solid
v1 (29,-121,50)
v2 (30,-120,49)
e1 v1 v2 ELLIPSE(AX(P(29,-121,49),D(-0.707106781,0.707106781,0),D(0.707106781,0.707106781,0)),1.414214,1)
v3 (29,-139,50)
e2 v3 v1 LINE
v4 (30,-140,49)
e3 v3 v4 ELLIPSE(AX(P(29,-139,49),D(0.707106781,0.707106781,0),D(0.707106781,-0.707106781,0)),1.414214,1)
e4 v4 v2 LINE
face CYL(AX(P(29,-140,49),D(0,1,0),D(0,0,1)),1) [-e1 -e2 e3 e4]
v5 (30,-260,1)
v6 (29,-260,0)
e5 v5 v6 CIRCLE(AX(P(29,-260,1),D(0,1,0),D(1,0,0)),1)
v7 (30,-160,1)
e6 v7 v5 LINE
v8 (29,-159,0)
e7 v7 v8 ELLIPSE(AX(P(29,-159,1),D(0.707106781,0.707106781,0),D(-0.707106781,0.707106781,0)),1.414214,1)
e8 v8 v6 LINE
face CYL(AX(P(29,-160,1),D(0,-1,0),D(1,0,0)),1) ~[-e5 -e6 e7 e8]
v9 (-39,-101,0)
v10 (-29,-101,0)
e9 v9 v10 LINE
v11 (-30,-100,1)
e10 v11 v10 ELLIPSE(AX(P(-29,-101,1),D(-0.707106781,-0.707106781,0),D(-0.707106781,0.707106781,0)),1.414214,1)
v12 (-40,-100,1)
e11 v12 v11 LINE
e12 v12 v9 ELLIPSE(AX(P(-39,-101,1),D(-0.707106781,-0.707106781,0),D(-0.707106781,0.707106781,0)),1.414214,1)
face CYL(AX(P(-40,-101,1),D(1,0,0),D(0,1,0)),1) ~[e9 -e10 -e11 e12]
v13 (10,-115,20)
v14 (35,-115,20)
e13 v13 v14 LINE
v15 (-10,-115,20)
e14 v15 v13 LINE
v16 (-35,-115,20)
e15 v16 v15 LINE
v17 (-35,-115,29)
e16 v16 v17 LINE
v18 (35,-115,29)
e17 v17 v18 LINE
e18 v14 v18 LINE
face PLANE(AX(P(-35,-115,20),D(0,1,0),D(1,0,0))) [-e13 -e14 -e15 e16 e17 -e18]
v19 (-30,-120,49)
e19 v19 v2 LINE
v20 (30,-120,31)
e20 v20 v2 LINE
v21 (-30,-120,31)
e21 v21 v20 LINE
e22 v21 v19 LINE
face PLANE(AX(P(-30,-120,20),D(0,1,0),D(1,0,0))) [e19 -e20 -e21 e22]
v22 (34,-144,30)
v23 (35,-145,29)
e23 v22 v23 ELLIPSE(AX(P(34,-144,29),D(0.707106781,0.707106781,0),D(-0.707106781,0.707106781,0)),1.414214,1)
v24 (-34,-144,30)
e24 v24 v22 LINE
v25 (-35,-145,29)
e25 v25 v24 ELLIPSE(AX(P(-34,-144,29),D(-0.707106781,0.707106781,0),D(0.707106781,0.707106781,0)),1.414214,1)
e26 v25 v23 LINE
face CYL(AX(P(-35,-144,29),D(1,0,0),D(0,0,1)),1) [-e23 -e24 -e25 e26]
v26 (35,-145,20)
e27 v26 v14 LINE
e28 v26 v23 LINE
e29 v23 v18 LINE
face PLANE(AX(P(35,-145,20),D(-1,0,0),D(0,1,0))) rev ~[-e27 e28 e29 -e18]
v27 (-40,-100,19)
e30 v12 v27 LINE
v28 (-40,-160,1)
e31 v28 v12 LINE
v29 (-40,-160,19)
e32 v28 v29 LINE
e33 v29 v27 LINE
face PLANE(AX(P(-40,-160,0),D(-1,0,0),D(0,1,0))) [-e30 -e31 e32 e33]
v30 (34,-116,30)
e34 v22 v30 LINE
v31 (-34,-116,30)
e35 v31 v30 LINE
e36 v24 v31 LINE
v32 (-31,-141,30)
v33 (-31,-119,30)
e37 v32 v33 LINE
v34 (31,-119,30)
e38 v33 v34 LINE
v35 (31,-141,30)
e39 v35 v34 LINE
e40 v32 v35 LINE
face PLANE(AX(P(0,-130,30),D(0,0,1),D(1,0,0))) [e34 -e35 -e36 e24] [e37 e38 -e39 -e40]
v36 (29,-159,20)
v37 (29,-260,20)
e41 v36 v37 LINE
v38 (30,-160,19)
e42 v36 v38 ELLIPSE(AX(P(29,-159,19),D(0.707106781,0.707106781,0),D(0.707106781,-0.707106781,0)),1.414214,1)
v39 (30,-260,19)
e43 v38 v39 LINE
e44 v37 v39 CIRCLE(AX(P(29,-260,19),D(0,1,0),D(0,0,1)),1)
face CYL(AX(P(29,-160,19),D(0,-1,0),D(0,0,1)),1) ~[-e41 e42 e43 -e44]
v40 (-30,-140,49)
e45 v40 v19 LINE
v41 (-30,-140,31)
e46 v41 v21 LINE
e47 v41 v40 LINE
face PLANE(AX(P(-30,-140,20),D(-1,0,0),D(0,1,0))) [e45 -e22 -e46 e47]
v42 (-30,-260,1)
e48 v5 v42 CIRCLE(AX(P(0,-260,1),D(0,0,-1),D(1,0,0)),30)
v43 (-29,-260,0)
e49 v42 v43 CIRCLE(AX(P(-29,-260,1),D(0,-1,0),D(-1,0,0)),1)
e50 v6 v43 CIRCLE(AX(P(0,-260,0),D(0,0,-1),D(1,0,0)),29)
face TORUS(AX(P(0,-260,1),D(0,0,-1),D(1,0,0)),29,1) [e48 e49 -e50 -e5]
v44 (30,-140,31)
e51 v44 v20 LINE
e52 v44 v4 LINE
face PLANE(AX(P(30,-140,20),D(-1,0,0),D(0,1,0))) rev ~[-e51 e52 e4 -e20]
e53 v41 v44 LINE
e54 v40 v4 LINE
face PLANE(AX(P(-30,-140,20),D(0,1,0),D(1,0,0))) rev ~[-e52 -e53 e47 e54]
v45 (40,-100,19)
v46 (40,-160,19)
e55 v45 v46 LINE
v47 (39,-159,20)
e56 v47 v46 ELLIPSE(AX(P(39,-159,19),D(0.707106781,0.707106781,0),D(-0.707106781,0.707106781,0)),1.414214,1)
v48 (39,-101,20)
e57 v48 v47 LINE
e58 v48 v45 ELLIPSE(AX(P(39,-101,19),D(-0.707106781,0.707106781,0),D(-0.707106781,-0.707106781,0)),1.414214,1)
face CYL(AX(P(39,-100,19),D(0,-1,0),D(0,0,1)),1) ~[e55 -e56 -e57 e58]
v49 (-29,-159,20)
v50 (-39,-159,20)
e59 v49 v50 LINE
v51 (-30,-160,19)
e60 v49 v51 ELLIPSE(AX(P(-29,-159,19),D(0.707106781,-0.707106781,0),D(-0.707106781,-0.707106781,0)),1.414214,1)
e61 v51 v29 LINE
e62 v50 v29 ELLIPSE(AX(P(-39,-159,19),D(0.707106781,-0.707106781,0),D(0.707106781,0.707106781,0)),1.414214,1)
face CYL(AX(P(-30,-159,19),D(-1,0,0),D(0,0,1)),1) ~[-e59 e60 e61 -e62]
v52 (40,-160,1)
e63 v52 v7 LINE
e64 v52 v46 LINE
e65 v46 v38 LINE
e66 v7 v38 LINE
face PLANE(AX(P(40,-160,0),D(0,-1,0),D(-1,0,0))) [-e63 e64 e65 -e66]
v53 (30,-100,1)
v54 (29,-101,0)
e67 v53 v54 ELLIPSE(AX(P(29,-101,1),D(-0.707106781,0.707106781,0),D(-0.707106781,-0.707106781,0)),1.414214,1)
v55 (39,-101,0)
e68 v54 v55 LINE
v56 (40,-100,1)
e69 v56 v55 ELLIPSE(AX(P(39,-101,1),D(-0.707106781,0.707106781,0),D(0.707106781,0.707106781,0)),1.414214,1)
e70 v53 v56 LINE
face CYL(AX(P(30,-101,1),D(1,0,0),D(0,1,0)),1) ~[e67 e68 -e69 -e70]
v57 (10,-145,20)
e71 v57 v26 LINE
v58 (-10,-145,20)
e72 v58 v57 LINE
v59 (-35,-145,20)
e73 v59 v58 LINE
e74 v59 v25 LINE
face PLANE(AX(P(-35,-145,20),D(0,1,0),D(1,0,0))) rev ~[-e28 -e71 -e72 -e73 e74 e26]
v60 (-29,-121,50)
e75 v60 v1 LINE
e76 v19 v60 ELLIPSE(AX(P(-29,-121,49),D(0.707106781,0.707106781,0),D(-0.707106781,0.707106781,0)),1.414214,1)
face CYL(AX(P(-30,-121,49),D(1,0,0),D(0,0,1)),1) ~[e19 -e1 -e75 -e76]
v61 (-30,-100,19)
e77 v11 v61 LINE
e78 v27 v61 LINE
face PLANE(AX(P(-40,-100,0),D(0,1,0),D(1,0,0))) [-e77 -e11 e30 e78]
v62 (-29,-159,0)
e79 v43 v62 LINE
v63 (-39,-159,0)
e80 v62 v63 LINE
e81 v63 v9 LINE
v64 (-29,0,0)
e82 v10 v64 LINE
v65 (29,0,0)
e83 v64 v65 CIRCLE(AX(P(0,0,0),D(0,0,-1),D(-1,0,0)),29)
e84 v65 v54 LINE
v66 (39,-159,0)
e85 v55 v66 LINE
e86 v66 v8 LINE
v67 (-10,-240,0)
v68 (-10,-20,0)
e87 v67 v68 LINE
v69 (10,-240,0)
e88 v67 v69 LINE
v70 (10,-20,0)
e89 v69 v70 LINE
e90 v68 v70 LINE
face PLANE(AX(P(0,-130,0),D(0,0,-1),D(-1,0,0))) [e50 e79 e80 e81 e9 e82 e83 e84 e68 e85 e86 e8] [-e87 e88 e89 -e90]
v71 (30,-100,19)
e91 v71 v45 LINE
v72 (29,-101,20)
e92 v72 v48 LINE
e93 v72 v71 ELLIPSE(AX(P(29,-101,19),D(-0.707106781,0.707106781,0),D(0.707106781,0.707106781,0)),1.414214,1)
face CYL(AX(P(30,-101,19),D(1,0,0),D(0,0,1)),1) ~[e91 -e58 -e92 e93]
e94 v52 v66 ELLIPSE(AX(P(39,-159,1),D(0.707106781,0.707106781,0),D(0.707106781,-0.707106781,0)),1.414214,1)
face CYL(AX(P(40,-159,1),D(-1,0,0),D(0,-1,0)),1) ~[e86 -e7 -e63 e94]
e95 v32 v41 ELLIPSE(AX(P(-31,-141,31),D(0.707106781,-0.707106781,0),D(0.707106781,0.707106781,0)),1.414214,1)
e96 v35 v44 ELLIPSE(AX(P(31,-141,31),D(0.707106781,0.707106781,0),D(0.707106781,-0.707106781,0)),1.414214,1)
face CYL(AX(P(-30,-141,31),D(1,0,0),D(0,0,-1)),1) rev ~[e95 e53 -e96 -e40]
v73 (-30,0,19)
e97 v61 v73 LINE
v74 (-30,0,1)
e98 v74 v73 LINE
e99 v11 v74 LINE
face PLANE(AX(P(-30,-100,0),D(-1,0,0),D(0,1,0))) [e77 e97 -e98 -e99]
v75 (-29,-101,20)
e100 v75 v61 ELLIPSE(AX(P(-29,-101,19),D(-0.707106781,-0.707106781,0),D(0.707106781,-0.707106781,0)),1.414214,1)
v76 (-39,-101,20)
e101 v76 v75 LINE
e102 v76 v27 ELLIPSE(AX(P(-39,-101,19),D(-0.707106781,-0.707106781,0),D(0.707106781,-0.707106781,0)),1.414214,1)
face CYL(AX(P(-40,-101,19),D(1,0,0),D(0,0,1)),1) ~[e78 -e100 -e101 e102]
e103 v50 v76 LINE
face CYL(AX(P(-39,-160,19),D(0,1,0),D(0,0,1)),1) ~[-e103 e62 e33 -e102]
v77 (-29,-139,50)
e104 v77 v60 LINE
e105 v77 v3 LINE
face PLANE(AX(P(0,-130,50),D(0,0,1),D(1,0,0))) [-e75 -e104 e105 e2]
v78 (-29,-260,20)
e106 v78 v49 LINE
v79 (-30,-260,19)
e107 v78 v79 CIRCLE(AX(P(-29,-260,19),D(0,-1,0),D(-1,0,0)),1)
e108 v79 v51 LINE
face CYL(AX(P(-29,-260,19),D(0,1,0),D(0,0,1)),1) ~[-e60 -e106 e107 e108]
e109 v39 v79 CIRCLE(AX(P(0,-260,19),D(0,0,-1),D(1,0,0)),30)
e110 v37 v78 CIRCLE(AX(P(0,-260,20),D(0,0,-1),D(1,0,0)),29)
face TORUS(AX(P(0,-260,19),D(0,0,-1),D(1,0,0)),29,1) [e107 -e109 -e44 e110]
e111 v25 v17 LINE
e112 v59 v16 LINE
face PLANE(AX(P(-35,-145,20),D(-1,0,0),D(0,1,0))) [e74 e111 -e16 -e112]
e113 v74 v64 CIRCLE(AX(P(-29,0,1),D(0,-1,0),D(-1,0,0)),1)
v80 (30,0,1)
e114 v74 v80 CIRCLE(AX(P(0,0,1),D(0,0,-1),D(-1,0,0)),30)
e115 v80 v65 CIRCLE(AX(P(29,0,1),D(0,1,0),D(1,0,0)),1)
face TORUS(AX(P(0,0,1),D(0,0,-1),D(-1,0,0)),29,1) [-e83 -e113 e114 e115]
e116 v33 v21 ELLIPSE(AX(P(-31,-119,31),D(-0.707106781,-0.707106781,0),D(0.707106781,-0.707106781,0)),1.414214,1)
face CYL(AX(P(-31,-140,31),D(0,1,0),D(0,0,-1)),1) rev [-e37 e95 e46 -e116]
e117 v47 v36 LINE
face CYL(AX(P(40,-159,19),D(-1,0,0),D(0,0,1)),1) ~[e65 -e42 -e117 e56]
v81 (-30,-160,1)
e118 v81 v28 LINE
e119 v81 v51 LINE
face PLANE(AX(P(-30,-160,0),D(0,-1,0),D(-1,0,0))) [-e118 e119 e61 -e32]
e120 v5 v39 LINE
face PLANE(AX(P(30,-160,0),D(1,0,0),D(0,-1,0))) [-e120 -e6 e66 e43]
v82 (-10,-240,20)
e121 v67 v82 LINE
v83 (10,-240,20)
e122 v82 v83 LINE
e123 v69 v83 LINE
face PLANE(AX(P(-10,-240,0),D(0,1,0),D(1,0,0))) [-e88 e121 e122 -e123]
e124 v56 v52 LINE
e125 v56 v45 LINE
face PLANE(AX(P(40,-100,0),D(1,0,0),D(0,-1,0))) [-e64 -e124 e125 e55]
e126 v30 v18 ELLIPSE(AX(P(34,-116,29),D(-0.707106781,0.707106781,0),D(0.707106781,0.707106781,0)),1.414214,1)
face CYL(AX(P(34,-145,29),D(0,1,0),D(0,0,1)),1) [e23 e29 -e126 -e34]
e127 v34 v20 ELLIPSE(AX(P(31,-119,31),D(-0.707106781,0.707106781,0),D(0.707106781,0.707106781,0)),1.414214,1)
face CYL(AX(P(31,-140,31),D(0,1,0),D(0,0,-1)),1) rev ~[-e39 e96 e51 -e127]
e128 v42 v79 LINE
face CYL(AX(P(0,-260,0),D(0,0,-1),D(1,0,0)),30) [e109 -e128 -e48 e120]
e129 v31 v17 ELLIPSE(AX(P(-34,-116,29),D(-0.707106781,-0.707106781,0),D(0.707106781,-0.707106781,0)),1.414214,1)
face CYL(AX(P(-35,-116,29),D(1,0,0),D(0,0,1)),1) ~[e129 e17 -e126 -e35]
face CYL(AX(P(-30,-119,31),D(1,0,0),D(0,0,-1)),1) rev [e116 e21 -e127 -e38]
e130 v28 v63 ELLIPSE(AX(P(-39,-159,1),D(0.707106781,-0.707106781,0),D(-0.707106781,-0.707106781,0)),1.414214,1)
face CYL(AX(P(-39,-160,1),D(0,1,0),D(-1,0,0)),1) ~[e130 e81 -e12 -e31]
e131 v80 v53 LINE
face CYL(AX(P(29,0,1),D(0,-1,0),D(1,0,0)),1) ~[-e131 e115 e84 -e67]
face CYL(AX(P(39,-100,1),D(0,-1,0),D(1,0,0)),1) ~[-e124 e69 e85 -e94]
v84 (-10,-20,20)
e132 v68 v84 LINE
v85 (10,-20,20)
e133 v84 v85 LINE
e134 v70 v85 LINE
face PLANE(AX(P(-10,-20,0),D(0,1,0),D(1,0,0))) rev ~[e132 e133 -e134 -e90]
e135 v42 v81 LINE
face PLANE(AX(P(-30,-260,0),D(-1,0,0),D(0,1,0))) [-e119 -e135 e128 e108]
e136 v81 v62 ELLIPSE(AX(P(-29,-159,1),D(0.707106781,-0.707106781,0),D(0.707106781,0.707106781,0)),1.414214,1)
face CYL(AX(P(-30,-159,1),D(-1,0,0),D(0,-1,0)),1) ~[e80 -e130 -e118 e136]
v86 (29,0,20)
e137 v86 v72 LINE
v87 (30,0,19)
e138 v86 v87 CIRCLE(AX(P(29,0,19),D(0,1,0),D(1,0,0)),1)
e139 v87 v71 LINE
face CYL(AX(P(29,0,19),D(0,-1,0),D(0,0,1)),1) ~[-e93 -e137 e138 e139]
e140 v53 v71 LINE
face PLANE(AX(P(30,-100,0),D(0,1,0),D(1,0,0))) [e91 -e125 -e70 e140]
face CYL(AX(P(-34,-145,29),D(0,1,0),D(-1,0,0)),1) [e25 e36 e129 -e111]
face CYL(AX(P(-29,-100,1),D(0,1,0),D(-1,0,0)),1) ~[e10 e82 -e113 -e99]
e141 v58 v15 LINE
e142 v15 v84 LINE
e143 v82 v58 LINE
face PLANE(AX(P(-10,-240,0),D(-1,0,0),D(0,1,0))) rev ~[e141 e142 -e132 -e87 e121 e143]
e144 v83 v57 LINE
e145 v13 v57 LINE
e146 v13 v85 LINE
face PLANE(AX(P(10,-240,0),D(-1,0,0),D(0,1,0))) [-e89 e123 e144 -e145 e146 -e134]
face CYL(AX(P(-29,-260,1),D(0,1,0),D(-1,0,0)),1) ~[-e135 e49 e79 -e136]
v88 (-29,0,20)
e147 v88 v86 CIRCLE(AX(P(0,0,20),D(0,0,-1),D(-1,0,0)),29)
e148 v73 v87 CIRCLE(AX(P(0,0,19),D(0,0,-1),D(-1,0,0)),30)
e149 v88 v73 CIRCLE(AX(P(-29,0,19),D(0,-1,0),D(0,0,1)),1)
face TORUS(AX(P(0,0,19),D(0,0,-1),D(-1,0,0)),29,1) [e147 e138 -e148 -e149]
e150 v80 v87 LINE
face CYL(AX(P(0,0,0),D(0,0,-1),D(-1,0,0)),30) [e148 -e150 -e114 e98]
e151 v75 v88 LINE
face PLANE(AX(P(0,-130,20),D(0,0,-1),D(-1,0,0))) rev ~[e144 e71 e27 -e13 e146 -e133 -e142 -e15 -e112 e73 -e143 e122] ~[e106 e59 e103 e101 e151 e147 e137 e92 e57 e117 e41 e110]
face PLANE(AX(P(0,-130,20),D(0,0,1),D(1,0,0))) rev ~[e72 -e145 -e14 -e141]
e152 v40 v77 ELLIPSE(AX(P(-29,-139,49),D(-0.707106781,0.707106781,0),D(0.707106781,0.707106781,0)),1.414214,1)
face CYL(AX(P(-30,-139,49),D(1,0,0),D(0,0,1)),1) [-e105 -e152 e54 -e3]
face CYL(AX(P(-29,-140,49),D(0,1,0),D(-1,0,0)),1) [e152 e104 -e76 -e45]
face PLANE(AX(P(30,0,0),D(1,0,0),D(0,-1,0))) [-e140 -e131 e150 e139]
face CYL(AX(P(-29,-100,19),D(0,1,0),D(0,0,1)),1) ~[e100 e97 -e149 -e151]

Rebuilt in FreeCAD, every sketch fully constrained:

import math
import FreeCAD as App
import Part
import Sketcher


def edges_at(feature, points):
    """Names of the edges that pass closest to the given points."""
    edges = feature.Shape.Edges
    near = lambda p: min(range(len(edges)), key=lambda i: edges[i].distToShape(Part.Vertex(*p))[0])
    return sorted({f"Edge{near(p) + 1}" for p in points})

doc = App.newDocument("Part")
body = doc.addObject("PartDesign::Body", "Body")

sketch1 = doc.addObject("Sketcher::SketchObject", "Sketch")
body.addObject(sketch1)
sketch1.AttachmentSupport = (doc.XY_Plane, [""])
sketch1.MapMode = "FlatFace"
sketch1.addGeometry([
    Part.LineSegment(App.Vector(30, -100, 0), App.Vector(30, 0, 0)),
    Part.ArcOfCircle(Part.Circle(App.Vector(0, 0, 0), App.Vector(0, 0, 1), 30), math.radians(0), math.radians(180)),
    Part.LineSegment(App.Vector(-30, 0, 0), App.Vector(-30, -100, 0)),
    Part.LineSegment(App.Vector(-30, -100, 0), App.Vector(-40, -100, 0)),
    Part.LineSegment(App.Vector(-40, -100, 0), App.Vector(-40, -160, 0)),
    Part.LineSegment(App.Vector(-40, -160, 0), App.Vector(-30, -160, 0)),
    Part.LineSegment(App.Vector(-30, -160, 0), App.Vector(-30, -260, 0)),
    Part.ArcOfCircle(Part.Circle(App.Vector(0, -260, 0), App.Vector(0, 0, 1), 30), math.radians(180), math.radians(360)),
    Part.LineSegment(App.Vector(30, -260, 0), App.Vector(30, -160, 0)),
    Part.LineSegment(App.Vector(30, -160, 0), App.Vector(40, -160, 0)),
    Part.LineSegment(App.Vector(40, -160, 0), App.Vector(40, -100, 0)),
    Part.LineSegment(App.Vector(40, -100, 0), App.Vector(30, -100, 0)),
    Part.LineSegment(App.Vector(-10, -240, 0), App.Vector(-10, -20, 0)),
    Part.LineSegment(App.Vector(-10, -20, 0), App.Vector(10, -20, 0)),
    Part.LineSegment(App.Vector(10, -20, 0), App.Vector(10, -240, 0)),
    Part.LineSegment(App.Vector(10, -240, 0), App.Vector(-10, -240, 0)),
], False)
sketch1.addConstraint([
    Sketcher.Constraint("Tangent", 0, 2, 1, 1),
    Sketcher.Constraint("Tangent", 1, 2, 2, 1),
    Sketcher.Constraint("Coincident", 2, 2, 3, 1),
    Sketcher.Constraint("Coincident", 3, 2, 4, 1),
    Sketcher.Constraint("Coincident", 4, 2, 5, 1),
    Sketcher.Constraint("Coincident", 5, 2, 6, 1),
    Sketcher.Constraint("Tangent", 6, 2, 7, 1),
    Sketcher.Constraint("Tangent", 7, 2, 8, 1),
    Sketcher.Constraint("Coincident", 8, 2, 9, 1),
    Sketcher.Constraint("Coincident", 9, 2, 10, 1),
    Sketcher.Constraint("Coincident", 10, 2, 11, 1),
    Sketcher.Constraint("Coincident", 11, 2, 0, 1),
    Sketcher.Constraint("Coincident", 12, 2, 13, 1),
    Sketcher.Constraint("Coincident", 13, 2, 14, 1),
    Sketcher.Constraint("Coincident", 14, 2, 15, 1),
    Sketcher.Constraint("Coincident", 15, 2, 12, 1),
    Sketcher.Constraint("Vertical", 0),
    Sketcher.Constraint("Vertical", 2),
    Sketcher.Constraint("Horizontal", 3),
    Sketcher.Constraint("Vertical", 4),
    Sketcher.Constraint("Horizontal", 5),
    Sketcher.Constraint("Vertical", 6),
    Sketcher.Constraint("Vertical", 8),
    Sketcher.Constraint("Horizontal", 9),
    Sketcher.Constraint("Vertical", 10),
    Sketcher.Constraint("Horizontal", 11),
    Sketcher.Constraint("Vertical", 12),
    Sketcher.Constraint("Horizontal", 13),
    Sketcher.Constraint("Vertical", 14),
    Sketcher.Constraint("Horizontal", 15),
    Sketcher.Constraint("Coincident", 1, 3, -1, 1),
    Sketcher.Constraint("Equal", 1, 7),
    Sketcher.Constraint("Symmetric", 5, 2, 8, 2, -2),
    Sketcher.Constraint("Symmetric", 3, 2, 10, 2, -2),
    Sketcher.Constraint("Equal", 2, 6),
    Sketcher.Constraint("Radius", 1, 30.0),
    Sketcher.Constraint("DistanceX", 3, 2, 3, 1, 10.0),
    Sketcher.Constraint("DistanceX", 13, 1, 13, 2, 20.0),
    Sketcher.Constraint("DistanceY", 0, 1, 0, 2, 100.0),
    Sketcher.Constraint("DistanceY", 4, 2, 4, 1, 60.0),
    Sketcher.Constraint("DistanceY", 12, 1, 12, 2, 220.0),
    Sketcher.Constraint("DistanceX", 12, 2, -1, 1, 10.0),
    Sketcher.Constraint("DistanceY", 12, 2, -1, 1, 20.0),
])
pad1 = doc.addObject("PartDesign::Pad", "Pad")
body.addObject(pad1)
pad1.Profile = sketch1
pad1.Length = 20

sketch2 = doc.addObject("Sketcher::SketchObject", "Sketch001")
body.addObject(sketch2)
sketch2.AttachmentSupport = (doc.XY_Plane, [""])
sketch2.MapMode = "FlatFace"
sketch2.AttachmentOffset = App.Placement(App.Vector(0, 0, 20), App.Rotation())
sketch2.addGeometry([
    Part.LineSegment(App.Vector(-30, -120, 0), App.Vector(-30, -140, 0)),
    Part.LineSegment(App.Vector(-30, -140, 0), App.Vector(30, -140, 0)),
    Part.LineSegment(App.Vector(30, -140, 0), App.Vector(30, -120, 0)),
    Part.LineSegment(App.Vector(30, -120, 0), App.Vector(-30, -120, 0)),
], False)
sketch2.addConstraint([
    Sketcher.Constraint("Coincident", 0, 2, 1, 1),
    Sketcher.Constraint("Coincident", 1, 2, 2, 1),
    Sketcher.Constraint("Coincident", 2, 2, 3, 1),
    Sketcher.Constraint("Coincident", 3, 2, 0, 1),
    Sketcher.Constraint("Vertical", 0),
    Sketcher.Constraint("Horizontal", 1),
    Sketcher.Constraint("Vertical", 2),
    Sketcher.Constraint("Horizontal", 3),
    Sketcher.Constraint("DistanceX", 1, 1, 1, 2, 60.0),
    Sketcher.Constraint("DistanceY", 0, 2, 0, 1, 20.0),
    Sketcher.Constraint("DistanceX", 0, 2, -1, 1, 30.0),
    Sketcher.Constraint("DistanceY", 0, 2, -1, 1, 140.0),
])
pad2 = doc.addObject("PartDesign::Pad", "Pad001")
body.addObject(pad2)
pad2.Profile = sketch2
pad2.Length = 30

sketch3 = doc.addObject("Sketcher::SketchObject", "Sketch002")
body.addObject(sketch3)
sketch3.AttachmentSupport = (doc.XY_Plane, [""])
sketch3.MapMode = "FlatFace"
sketch3.AttachmentOffset = App.Placement(App.Vector(0, 0, 20), App.Rotation())
sketch3.addGeometry([
    Part.LineSegment(App.Vector(-35, -115, 0), App.Vector(-35, -145, 0)),
    Part.LineSegment(App.Vector(-35, -145, 0), App.Vector(35, -145, 0)),
    Part.LineSegment(App.Vector(35, -145, 0), App.Vector(35, -115, 0)),
    Part.LineSegment(App.Vector(35, -115, 0), App.Vector(-35, -115, 0)),
    Part.LineSegment(App.Vector(30, -140, 0), App.Vector(-30, -140, 0)),
    Part.LineSegment(App.Vector(-30, -140, 0), App.Vector(-30, -120, 0)),
    Part.LineSegment(App.Vector(-30, -120, 0), App.Vector(30, -120, 0)),
    Part.LineSegment(App.Vector(30, -120, 0), App.Vector(30, -140, 0)),
], False)
sketch3.addConstraint([
    Sketcher.Constraint("Coincident", 0, 2, 1, 1),
    Sketcher.Constraint("Coincident", 1, 2, 2, 1),
    Sketcher.Constraint("Coincident", 2, 2, 3, 1),
    Sketcher.Constraint("Coincident", 3, 2, 0, 1),
    Sketcher.Constraint("Coincident", 4, 2, 5, 1),
    Sketcher.Constraint("Coincident", 5, 2, 6, 1),
    Sketcher.Constraint("Coincident", 6, 2, 7, 1),
    Sketcher.Constraint("Coincident", 7, 2, 4, 1),
    Sketcher.Constraint("Vertical", 0),
    Sketcher.Constraint("Horizontal", 1),
    Sketcher.Constraint("Vertical", 2),
    Sketcher.Constraint("Horizontal", 3),
    Sketcher.Constraint("Horizontal", 4),
    Sketcher.Constraint("Vertical", 5),
    Sketcher.Constraint("Horizontal", 6),
    Sketcher.Constraint("Vertical", 7),
    Sketcher.Constraint("DistanceX", 1, 1, 1, 2, 70.0),
    Sketcher.Constraint("DistanceX", 4, 2, 4, 1, 60.0),
    Sketcher.Constraint("DistanceY", 0, 2, 0, 1, 30.0),
    Sketcher.Constraint("DistanceY", 5, 1, 5, 2, 20.0),
    Sketcher.Constraint("DistanceX", 0, 2, -1, 1, 35.0),
    Sketcher.Constraint("DistanceY", 0, 2, -1, 1, 145.0),
    Sketcher.Constraint("DistanceX", 4, 2, -1, 1, 30.0),
    Sketcher.Constraint("DistanceY", 4, 2, -1, 1, 140.0),
])
pad3 = doc.addObject("PartDesign::Pad", "Pad002")
body.addObject(pad3)
pad3.Profile = sketch3
pad3.Length = 10
doc.recompute()

fillet = doc.addObject("PartDesign::Fillet", "Fillet")
body.addObject(fillet)
fillet.Base = (pad3, edges_at(pad3, [
    (-30, -130, 50),
    (0, -140, 50),
    (30, -130, 50),
    (0, -120, 50),
    (35, -130, 30),
    (0, -115, 30),
    (-35, -130, 30),
    (0, -145, 30),
    (0, -120, 30),
    (-30, -130, 30),
    (0, -140, 30),
    (30, -130, 30),
]))
fillet.Radius = 1
doc.recompute()

fillet2 = doc.addObject("PartDesign::Fillet", "Fillet001")
body.addObject(fillet2)
fillet2.Base = (fillet, edges_at(fillet, [
    (30, -50, 0),
    (35, -100, 0),
    (-35, -100, 20),
    (40, -130, 0),
    (35, -160, 0),
    (30, -210, 0),
    (0, -290, 0),
    (-30, -210, 0),
    (-35, -160, 0),
    (-40, -130, 0),
    (-35, -100, 0),
    (-30, -50, 0),
    (0, 30, 0),
    (-40, -130, 20),
    (-35, -160, 20),
    (-30, -210, 20),
    (0, -290, 20),
    (30, -210, 20),
    (35, -160, 20),
    (40, -130, 20),
    (35, -100, 20),
    (30, -50, 20),
    (0, 30, 20),
    (-30, -50, 20),
]))
fillet2.Radius = 1

doc.recompute()
